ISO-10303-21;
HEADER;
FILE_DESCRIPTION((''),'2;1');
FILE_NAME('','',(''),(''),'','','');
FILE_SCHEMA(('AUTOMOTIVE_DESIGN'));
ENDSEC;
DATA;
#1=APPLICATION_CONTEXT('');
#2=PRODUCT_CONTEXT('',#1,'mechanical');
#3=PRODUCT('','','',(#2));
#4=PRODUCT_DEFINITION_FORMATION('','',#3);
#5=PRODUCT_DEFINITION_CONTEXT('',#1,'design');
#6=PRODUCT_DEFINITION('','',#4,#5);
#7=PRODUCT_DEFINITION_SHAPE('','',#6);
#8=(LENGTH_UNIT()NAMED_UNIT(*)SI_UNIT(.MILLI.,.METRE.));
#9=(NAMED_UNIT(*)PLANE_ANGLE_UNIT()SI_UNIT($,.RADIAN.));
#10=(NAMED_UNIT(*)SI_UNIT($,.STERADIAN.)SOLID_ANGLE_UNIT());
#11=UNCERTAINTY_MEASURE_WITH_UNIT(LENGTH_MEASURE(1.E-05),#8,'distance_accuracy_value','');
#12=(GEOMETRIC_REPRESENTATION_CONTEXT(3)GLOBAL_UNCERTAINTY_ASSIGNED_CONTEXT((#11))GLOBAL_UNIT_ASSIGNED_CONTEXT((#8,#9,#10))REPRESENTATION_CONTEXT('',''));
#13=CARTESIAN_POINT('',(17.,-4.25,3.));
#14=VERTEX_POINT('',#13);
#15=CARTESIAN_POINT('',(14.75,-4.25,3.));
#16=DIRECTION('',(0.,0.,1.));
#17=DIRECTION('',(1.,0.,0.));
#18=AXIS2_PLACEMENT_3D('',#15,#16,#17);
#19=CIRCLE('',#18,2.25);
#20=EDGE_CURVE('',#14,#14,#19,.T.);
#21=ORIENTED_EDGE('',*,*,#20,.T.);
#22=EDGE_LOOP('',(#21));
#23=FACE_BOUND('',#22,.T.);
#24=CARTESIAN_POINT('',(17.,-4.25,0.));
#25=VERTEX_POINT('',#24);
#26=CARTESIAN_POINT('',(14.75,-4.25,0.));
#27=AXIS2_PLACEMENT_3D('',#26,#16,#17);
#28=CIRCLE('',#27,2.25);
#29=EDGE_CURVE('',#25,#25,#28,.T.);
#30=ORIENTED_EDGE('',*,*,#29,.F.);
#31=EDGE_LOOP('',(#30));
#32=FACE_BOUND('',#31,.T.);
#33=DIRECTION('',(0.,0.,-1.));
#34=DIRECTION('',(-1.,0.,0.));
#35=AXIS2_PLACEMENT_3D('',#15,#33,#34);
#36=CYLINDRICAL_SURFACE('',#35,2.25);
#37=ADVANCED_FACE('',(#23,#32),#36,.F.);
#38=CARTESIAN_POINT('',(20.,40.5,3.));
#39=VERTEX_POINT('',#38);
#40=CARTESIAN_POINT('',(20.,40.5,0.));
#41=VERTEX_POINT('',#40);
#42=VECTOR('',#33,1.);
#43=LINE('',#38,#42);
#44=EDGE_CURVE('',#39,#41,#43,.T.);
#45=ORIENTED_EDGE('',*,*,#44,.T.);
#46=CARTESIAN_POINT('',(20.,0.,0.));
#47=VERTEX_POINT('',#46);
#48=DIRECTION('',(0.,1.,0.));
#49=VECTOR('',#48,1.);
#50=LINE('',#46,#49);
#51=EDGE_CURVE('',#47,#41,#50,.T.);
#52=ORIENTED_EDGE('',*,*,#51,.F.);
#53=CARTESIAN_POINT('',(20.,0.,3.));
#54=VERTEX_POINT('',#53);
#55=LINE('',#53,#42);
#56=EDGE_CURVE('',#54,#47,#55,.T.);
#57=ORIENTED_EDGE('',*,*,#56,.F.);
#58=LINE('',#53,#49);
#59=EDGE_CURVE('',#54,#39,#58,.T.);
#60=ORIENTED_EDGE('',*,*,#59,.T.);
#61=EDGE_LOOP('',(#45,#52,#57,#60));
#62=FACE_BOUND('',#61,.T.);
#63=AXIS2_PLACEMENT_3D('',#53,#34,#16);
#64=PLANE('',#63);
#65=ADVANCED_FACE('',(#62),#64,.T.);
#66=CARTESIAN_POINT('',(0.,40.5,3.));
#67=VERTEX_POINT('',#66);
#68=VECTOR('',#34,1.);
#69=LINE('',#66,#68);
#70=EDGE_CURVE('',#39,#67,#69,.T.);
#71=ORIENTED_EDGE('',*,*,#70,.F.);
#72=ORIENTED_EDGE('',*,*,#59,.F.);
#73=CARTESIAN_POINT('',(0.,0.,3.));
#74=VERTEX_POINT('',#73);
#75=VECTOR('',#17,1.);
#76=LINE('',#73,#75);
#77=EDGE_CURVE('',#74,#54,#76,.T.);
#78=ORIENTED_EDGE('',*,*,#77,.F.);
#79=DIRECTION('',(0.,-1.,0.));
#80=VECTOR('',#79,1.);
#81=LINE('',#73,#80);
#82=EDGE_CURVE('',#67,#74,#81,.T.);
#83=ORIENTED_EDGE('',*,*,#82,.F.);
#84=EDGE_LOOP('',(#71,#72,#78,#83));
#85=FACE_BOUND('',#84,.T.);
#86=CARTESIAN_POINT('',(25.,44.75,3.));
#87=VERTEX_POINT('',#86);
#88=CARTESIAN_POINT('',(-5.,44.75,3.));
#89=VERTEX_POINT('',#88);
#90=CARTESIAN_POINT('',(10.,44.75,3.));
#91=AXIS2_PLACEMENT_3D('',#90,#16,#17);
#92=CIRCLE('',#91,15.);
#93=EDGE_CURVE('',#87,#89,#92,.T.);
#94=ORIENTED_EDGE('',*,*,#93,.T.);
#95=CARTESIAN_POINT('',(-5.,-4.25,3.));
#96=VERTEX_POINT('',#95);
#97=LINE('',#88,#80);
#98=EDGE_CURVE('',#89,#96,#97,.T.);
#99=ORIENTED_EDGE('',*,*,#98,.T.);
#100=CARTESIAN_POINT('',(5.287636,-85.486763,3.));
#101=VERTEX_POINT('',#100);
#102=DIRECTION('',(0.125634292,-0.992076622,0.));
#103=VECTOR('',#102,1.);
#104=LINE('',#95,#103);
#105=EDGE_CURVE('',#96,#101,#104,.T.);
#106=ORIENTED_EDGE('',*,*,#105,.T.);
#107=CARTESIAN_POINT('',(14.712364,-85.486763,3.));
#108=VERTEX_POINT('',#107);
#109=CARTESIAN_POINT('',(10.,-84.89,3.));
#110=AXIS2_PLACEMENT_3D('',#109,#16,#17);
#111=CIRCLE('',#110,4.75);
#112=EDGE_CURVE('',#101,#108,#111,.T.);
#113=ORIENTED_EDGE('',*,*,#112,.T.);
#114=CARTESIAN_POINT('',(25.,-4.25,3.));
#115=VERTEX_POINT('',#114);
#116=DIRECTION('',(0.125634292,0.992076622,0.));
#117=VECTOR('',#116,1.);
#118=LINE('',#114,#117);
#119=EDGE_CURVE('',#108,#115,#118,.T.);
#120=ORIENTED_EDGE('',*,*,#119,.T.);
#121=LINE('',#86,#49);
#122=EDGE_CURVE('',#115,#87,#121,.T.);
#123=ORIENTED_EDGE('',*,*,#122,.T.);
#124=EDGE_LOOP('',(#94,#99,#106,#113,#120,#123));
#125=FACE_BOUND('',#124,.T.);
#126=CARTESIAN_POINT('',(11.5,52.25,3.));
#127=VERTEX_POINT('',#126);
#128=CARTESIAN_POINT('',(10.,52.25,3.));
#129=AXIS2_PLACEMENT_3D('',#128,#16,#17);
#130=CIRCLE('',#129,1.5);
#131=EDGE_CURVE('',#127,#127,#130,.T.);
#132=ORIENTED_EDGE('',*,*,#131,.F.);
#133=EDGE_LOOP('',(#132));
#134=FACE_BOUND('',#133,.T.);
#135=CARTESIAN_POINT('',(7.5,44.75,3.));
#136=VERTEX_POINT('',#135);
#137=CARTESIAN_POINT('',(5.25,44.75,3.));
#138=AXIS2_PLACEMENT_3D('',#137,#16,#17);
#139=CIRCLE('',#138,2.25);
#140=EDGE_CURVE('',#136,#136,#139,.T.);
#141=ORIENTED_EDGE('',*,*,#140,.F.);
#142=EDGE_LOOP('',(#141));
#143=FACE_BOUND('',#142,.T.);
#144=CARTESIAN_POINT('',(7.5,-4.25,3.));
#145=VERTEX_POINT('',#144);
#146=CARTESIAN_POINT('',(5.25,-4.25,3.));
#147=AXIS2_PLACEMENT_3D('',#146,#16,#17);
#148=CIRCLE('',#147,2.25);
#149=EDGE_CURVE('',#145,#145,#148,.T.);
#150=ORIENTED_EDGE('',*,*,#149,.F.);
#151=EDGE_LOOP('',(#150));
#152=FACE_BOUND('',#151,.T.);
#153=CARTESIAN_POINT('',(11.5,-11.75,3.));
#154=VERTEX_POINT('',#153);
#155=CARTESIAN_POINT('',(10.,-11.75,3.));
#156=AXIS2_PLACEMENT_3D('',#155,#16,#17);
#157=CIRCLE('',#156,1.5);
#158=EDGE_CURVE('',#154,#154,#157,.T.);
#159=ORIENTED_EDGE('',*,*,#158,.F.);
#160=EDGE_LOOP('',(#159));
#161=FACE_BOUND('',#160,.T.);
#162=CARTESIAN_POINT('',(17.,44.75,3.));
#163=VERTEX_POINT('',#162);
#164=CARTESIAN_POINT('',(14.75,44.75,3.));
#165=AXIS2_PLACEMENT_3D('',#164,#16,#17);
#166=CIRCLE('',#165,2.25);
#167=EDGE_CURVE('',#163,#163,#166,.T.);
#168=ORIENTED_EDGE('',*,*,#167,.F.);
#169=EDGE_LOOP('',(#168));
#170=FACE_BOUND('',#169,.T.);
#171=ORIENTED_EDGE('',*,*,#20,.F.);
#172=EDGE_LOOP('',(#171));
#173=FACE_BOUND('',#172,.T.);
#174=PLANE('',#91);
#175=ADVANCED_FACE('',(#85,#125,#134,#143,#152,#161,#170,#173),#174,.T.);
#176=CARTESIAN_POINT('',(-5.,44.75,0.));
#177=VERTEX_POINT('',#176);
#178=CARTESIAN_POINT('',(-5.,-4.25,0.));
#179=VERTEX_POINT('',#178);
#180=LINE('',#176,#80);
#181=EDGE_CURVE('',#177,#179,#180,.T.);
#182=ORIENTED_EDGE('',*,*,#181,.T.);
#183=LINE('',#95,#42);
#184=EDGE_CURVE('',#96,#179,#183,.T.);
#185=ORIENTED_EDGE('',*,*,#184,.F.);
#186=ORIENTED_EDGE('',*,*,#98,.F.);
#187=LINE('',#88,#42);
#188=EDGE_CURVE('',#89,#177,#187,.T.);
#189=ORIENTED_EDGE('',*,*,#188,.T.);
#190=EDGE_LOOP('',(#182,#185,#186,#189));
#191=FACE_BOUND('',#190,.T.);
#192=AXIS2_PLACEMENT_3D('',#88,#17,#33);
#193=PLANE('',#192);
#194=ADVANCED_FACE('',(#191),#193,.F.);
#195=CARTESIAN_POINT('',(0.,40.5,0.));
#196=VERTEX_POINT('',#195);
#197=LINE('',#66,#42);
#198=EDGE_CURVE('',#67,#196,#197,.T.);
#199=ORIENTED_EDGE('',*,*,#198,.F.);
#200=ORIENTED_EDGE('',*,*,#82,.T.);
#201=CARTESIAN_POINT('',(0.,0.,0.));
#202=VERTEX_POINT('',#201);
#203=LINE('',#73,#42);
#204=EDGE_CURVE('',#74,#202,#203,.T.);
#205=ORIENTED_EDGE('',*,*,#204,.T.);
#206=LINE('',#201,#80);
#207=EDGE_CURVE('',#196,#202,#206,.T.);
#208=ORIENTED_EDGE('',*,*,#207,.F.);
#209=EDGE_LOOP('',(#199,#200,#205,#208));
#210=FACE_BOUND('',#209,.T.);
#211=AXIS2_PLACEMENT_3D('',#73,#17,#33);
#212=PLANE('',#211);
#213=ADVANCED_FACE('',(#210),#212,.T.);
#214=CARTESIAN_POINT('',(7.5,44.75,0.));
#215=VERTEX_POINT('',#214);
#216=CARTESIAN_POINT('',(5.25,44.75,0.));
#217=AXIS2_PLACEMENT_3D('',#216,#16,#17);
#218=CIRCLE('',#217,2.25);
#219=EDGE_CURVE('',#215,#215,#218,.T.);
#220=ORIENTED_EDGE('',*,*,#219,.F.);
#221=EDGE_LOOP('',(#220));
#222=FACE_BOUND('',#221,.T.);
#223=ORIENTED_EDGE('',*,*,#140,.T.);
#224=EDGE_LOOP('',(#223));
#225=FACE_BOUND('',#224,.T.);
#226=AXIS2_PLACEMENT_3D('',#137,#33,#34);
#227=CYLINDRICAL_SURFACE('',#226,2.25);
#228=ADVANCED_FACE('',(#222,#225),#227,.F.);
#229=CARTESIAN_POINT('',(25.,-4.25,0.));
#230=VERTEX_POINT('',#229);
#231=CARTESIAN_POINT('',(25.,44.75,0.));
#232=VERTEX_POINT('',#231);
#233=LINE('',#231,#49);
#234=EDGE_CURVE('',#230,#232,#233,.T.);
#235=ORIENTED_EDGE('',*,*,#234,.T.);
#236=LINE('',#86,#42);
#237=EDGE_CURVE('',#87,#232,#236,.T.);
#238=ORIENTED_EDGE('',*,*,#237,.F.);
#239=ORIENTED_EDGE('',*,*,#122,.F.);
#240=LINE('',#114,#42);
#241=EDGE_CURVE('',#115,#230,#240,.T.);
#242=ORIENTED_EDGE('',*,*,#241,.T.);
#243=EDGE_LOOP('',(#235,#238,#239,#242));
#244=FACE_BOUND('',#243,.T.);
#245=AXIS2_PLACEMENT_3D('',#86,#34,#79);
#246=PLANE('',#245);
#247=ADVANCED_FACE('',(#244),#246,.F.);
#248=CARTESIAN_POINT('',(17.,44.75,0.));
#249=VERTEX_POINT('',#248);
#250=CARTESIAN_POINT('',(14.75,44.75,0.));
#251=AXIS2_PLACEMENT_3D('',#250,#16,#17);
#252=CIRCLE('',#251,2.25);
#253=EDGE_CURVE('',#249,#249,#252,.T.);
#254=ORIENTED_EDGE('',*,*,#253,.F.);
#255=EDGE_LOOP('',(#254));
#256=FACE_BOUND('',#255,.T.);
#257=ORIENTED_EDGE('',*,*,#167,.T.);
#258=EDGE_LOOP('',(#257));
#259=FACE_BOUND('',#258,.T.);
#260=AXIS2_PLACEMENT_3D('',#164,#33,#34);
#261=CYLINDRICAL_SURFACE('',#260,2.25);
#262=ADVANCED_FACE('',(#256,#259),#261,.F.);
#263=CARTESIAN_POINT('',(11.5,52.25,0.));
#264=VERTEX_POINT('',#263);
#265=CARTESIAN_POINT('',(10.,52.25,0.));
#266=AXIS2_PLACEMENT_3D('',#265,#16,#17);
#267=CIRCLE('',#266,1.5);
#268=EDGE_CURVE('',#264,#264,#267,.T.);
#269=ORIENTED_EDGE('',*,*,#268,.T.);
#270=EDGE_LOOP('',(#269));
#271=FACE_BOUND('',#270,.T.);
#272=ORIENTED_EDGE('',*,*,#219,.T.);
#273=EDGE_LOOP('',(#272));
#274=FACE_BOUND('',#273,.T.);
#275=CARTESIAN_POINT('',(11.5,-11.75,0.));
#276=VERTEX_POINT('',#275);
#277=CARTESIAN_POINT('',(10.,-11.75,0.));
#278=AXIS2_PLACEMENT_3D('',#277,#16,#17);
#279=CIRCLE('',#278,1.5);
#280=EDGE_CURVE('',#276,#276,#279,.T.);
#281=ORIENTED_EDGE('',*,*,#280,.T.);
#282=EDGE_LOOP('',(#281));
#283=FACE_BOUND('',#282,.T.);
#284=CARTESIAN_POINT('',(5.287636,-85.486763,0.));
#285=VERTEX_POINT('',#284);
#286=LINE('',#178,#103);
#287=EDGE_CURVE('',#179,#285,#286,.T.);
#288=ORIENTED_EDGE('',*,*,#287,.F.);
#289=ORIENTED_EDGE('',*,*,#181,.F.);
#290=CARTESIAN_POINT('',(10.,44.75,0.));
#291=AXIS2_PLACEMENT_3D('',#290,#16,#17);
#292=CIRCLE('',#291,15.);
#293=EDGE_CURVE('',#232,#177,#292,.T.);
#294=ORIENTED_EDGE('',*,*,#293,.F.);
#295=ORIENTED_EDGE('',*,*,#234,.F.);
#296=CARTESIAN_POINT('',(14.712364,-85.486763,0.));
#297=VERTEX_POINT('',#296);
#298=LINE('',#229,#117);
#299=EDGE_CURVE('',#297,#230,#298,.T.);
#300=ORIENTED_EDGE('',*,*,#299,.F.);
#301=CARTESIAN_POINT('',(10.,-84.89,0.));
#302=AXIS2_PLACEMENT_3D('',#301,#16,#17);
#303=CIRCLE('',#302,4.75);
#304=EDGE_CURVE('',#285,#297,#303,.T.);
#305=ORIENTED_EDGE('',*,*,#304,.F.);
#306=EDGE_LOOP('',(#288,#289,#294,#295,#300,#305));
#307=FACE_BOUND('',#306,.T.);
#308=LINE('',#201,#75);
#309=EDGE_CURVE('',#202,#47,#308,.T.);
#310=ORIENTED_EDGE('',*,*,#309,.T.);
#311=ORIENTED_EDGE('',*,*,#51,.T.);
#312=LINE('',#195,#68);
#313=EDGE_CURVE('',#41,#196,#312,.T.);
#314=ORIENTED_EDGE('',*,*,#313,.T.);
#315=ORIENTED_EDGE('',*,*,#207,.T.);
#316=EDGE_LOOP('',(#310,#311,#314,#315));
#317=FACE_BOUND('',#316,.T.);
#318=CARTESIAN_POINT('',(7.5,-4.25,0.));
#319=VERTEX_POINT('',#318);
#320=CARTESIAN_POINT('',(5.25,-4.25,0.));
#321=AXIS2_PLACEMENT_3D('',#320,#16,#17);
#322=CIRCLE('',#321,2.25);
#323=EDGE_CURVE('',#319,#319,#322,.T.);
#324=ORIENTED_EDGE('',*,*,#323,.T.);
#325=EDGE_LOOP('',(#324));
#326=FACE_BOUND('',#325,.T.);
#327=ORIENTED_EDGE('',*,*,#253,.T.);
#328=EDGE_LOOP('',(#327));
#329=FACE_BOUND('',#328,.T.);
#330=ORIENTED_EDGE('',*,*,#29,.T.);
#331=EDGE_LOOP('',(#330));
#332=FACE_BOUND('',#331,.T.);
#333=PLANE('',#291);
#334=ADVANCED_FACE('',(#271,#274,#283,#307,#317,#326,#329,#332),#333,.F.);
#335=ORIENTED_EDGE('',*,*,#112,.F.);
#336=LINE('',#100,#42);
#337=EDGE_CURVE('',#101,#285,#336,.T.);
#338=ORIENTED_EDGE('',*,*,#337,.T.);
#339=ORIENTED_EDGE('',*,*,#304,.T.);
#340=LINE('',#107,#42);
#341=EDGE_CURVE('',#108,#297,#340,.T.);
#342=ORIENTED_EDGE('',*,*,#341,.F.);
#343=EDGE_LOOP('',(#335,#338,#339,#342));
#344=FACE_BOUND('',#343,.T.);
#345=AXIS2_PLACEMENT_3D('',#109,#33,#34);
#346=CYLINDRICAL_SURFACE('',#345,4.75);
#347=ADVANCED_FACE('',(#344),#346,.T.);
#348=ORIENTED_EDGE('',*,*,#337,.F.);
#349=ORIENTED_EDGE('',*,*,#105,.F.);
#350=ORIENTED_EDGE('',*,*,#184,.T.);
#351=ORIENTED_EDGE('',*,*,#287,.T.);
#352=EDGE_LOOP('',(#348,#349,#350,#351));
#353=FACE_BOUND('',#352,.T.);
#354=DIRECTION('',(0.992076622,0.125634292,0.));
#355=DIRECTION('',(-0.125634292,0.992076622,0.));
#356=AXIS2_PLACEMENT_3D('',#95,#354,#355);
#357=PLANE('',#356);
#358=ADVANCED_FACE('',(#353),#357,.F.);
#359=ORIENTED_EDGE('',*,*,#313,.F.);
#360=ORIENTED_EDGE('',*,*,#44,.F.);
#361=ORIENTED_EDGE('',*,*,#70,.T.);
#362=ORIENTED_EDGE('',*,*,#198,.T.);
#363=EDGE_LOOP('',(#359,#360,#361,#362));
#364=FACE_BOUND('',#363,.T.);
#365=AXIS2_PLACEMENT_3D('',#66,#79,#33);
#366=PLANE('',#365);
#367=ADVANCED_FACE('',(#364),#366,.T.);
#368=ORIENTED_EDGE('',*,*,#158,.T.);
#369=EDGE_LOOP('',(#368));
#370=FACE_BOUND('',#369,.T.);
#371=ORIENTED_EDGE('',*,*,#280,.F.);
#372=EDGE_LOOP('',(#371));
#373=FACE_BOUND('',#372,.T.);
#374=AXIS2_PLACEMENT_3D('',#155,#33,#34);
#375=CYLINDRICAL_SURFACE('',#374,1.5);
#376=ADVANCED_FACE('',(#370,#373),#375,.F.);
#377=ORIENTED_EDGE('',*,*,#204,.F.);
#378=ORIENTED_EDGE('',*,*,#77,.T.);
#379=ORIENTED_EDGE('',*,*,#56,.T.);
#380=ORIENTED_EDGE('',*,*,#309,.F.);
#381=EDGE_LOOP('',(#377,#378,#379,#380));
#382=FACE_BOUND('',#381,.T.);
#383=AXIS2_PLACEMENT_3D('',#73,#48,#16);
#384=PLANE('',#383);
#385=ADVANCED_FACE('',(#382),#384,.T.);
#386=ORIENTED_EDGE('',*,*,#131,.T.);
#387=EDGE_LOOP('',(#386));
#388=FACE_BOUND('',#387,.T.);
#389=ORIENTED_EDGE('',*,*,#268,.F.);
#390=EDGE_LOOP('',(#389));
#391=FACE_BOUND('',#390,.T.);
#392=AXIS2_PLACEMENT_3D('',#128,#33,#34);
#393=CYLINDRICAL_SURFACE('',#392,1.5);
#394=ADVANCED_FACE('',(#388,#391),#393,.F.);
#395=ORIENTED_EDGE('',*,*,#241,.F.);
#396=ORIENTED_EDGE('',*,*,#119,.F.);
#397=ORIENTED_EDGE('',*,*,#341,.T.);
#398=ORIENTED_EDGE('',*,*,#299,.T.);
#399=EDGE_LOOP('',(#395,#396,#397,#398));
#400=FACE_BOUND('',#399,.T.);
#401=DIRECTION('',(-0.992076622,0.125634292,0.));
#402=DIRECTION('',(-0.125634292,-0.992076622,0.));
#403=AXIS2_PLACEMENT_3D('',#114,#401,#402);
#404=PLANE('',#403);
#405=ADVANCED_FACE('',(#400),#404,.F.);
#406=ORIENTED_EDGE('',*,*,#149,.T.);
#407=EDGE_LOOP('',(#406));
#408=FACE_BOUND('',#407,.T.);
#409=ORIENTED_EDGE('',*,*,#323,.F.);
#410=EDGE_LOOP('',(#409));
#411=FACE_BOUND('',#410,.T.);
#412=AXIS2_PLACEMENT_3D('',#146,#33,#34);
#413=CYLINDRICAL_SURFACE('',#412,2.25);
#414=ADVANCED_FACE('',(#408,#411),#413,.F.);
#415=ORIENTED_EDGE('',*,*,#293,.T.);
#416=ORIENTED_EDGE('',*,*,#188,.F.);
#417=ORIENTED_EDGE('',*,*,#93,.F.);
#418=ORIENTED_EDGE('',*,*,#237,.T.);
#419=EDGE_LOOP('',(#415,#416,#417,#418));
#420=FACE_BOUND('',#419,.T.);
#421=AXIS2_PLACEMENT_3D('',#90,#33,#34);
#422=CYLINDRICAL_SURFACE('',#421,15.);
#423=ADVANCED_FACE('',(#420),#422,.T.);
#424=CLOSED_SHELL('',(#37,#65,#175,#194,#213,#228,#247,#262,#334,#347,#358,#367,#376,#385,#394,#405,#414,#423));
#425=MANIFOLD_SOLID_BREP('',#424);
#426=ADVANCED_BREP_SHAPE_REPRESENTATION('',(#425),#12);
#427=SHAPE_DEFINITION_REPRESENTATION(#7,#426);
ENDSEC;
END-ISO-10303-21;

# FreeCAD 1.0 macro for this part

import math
import FreeCAD as App
import Part
import Sketcher

V = App.Vector
Q = App.Units.Quantity


def add_polygon(sketch, points):
    """Adds a closed chain of lines whose ends are joined by coincident constraints."""
    first, n = sketch.GeometryCount, len(points)
    for a, b in zip(points, points[1:] + points[:1]):
        sketch.addGeometry(Part.LineSegment(App.Vector(*a, 0), App.Vector(*b, 0)), False)
    for i in range(n):
        sketch.addConstraint(Sketcher.Constraint("Coincident", first + i, 2, first + (i + 1) % n, 1))

doc = App.newDocument("Part")
body = doc.addObject("PartDesign::Body", "Body")

sketch1 = body.newObject("Sketcher::SketchObject", "Sketch")
sketch1.AttachmentSupport = (doc.getObject("XY_Plane"), [""])
sketch1.MapMode = "FlatFace"
sketch1.addGeometry(Part.LineSegment(V(-5, 44.8, 0), V(-5, -4.2, 0)), False)
sketch1.addGeometry(Part.LineSegment(V(-5, -4.2, 0), V(5.3, -85.5, 0)), False)
sketch1.addGeometry(Part.ArcOfCircle(Part.Circle(V(10, -84.9, 0), V(0, 0, 1), 4.8), math.radians(-173), math.radians(-7)), False)
sketch1.addGeometry(Part.LineSegment(V(14.7, -85.5, 0), V(25, -4.2, 0)), False)
sketch1.addGeometry(Part.LineSegment(V(25, -4.2, 0), V(25, 44.8, 0)), False)
sketch1.addGeometry(Part.ArcOfCircle(Part.Circle(V(10, 44.8, 0), V(0, 0, 1), 15), math.radians(0), math.radians(180)), False)
sketch1.addGeometry(Part.Circle(V(5.2, -4.2, 0), V(0, 0, 1), 2.2), False)
sketch1.addGeometry(Part.Circle(V(10, -11.8, 0), V(0, 0, 1), 1.5), False)
sketch1.addGeometry(Part.Circle(V(14.8, -4.2, 0), V(0, 0, 1), 2.2), False)
sketch1.addGeometry(Part.Circle(V(5.2, 44.8, 0), V(0, 0, 1), 2.2), False)
add_polygon(sketch1, [(20, 0), (0, 0), (0, 40.5), (20, 40.5)])
sketch1.addGeometry(Part.Circle(V(14.8, 44.8, 0), V(0, 0, 1), 2.2), False)
sketch1.addGeometry(Part.Circle(V(10, 52.2, 0), V(0, 0, 1), 1.5), False)
sketch1.addConstraint(Sketcher.Constraint("Coincident", 0, 2, 1, 1))
sketch1.addConstraint(Sketcher.Constraint("Tangent", 1, 2, 2, 1))
sketch1.addConstraint(Sketcher.Constraint("Tangent", 2, 2, 3, 1))
sketch1.addConstraint(Sketcher.Constraint("Coincident", 3, 2, 4, 1))
sketch1.addConstraint(Sketcher.Constraint("Tangent", 4, 2, 5, 1))
sketch1.addConstraint(Sketcher.Constraint("Tangent", 5, 2, 0, 1))
sketch1.addConstraint(Sketcher.Constraint("Vertical", 0))
sketch1.addConstraint(Sketcher.Constraint("Vertical", 4))
sketch1.addConstraint(Sketcher.Constraint("Horizontal", 10))
sketch1.addConstraint(Sketcher.Constraint("Vertical", 11))
sketch1.addConstraint(Sketcher.Constraint("Horizontal", 12))
sketch1.addConstraint(Sketcher.Constraint("Vertical", 13))
sketch1.addConstraint(Sketcher.Constraint("Coincident", 10, 2, -1, 1))
sketch1.addConstraint(Sketcher.Constraint("Equal", 6, 8))
sketch1.addConstraint(Sketcher.Constraint("Equal", 8, 9))
sketch1.addConstraint(Sketcher.Constraint("Equal", 9, 14))
sketch1.addConstraint(Sketcher.Constraint("Equal", 7, 15))
sketch1.addConstraint(Sketcher.Constraint("Horizontal", 6, 3, 8, 3))
sketch1.addConstraint(Sketcher.Constraint("Horizontal", 5, 3, 9, 3))
sketch1.addConstraint(Sketcher.Constraint("Horizontal", 9, 3, 14, 3))
sketch1.addConstraint(Sketcher.Constraint("Horizontal", 8, 3, 0, 2))
sketch1.addConstraint(Sketcher.Constraint("Horizontal", 1, 2, 2, 2))
sketch1.addConstraint(Sketcher.Constraint("Horizontal", 0, 2, 3, 2))
sketch1.addConstraint(Sketcher.Constraint("Vertical", 5, 3, 7, 3))
sketch1.addConstraint(Sketcher.Constraint("Vertical", 6, 3, 9, 3))
sketch1.addConstraint(Sketcher.Constraint("Vertical", 8, 3, 14, 3))
sketch1.addConstraint(Sketcher.Constraint("Vertical", 7, 3, 15, 3))
sketch1.addConstraint(Sketcher.Constraint("Diameter", 7, Q("3 mm")))
sketch1.addConstraint(Sketcher.Constraint("Radius", 5, Q("15 mm")))
sketch1.addConstraint(Sketcher.Constraint("Diameter", 6, Q("4.5 mm")))
sketch1.addConstraint(Sketcher.Constraint("DistanceX", 10, 2, 10, 1, Q("20 mm")))
sketch1.addConstraint(Sketcher.Constraint("DistanceY", 0, 2, 0, 1, Q("49 mm")))
sketch1.addConstraint(Sketcher.Constraint("Radius", 2, Q("4.75 mm")))
sketch1.addConstraint(Sketcher.Constraint("DistanceY", 11, 1, 11, 2, Q("40.5 mm")))
sketch1.addConstraint(Sketcher.Constraint("DistanceX", -1, 1, 2, 3, Q("10 mm")))
sketch1.addConstraint(Sketcher.Constraint("DistanceY", 7, 3, 6, 3, Q("7.5 mm")))
sketch1.addConstraint(Sketcher.Constraint("DistanceX", 6, 3, 8, 3, Q("9.5 mm")))
sketch1.addConstraint(Sketcher.Constraint("DistanceY", 5, 3, 15, 3, Q("7.5 mm")))
sketch1.addConstraint(Sketcher.Constraint("DistanceY", 2, 3, -1, 1, Q("84.89 mm")))
sketch1.addConstraint(Sketcher.Constraint("DistanceY", -1, 1, 5, 3, Q("44.75 mm")))
sketch1.addConstraint(Sketcher.Constraint("DistanceX", -1, 1, 6, 3, Q("5.25 mm")))
pad1 = body.newObject("PartDesign::Pad", "Pad")
pad1.Profile = sketch1
pad1.Length = 3

doc.recompute()
